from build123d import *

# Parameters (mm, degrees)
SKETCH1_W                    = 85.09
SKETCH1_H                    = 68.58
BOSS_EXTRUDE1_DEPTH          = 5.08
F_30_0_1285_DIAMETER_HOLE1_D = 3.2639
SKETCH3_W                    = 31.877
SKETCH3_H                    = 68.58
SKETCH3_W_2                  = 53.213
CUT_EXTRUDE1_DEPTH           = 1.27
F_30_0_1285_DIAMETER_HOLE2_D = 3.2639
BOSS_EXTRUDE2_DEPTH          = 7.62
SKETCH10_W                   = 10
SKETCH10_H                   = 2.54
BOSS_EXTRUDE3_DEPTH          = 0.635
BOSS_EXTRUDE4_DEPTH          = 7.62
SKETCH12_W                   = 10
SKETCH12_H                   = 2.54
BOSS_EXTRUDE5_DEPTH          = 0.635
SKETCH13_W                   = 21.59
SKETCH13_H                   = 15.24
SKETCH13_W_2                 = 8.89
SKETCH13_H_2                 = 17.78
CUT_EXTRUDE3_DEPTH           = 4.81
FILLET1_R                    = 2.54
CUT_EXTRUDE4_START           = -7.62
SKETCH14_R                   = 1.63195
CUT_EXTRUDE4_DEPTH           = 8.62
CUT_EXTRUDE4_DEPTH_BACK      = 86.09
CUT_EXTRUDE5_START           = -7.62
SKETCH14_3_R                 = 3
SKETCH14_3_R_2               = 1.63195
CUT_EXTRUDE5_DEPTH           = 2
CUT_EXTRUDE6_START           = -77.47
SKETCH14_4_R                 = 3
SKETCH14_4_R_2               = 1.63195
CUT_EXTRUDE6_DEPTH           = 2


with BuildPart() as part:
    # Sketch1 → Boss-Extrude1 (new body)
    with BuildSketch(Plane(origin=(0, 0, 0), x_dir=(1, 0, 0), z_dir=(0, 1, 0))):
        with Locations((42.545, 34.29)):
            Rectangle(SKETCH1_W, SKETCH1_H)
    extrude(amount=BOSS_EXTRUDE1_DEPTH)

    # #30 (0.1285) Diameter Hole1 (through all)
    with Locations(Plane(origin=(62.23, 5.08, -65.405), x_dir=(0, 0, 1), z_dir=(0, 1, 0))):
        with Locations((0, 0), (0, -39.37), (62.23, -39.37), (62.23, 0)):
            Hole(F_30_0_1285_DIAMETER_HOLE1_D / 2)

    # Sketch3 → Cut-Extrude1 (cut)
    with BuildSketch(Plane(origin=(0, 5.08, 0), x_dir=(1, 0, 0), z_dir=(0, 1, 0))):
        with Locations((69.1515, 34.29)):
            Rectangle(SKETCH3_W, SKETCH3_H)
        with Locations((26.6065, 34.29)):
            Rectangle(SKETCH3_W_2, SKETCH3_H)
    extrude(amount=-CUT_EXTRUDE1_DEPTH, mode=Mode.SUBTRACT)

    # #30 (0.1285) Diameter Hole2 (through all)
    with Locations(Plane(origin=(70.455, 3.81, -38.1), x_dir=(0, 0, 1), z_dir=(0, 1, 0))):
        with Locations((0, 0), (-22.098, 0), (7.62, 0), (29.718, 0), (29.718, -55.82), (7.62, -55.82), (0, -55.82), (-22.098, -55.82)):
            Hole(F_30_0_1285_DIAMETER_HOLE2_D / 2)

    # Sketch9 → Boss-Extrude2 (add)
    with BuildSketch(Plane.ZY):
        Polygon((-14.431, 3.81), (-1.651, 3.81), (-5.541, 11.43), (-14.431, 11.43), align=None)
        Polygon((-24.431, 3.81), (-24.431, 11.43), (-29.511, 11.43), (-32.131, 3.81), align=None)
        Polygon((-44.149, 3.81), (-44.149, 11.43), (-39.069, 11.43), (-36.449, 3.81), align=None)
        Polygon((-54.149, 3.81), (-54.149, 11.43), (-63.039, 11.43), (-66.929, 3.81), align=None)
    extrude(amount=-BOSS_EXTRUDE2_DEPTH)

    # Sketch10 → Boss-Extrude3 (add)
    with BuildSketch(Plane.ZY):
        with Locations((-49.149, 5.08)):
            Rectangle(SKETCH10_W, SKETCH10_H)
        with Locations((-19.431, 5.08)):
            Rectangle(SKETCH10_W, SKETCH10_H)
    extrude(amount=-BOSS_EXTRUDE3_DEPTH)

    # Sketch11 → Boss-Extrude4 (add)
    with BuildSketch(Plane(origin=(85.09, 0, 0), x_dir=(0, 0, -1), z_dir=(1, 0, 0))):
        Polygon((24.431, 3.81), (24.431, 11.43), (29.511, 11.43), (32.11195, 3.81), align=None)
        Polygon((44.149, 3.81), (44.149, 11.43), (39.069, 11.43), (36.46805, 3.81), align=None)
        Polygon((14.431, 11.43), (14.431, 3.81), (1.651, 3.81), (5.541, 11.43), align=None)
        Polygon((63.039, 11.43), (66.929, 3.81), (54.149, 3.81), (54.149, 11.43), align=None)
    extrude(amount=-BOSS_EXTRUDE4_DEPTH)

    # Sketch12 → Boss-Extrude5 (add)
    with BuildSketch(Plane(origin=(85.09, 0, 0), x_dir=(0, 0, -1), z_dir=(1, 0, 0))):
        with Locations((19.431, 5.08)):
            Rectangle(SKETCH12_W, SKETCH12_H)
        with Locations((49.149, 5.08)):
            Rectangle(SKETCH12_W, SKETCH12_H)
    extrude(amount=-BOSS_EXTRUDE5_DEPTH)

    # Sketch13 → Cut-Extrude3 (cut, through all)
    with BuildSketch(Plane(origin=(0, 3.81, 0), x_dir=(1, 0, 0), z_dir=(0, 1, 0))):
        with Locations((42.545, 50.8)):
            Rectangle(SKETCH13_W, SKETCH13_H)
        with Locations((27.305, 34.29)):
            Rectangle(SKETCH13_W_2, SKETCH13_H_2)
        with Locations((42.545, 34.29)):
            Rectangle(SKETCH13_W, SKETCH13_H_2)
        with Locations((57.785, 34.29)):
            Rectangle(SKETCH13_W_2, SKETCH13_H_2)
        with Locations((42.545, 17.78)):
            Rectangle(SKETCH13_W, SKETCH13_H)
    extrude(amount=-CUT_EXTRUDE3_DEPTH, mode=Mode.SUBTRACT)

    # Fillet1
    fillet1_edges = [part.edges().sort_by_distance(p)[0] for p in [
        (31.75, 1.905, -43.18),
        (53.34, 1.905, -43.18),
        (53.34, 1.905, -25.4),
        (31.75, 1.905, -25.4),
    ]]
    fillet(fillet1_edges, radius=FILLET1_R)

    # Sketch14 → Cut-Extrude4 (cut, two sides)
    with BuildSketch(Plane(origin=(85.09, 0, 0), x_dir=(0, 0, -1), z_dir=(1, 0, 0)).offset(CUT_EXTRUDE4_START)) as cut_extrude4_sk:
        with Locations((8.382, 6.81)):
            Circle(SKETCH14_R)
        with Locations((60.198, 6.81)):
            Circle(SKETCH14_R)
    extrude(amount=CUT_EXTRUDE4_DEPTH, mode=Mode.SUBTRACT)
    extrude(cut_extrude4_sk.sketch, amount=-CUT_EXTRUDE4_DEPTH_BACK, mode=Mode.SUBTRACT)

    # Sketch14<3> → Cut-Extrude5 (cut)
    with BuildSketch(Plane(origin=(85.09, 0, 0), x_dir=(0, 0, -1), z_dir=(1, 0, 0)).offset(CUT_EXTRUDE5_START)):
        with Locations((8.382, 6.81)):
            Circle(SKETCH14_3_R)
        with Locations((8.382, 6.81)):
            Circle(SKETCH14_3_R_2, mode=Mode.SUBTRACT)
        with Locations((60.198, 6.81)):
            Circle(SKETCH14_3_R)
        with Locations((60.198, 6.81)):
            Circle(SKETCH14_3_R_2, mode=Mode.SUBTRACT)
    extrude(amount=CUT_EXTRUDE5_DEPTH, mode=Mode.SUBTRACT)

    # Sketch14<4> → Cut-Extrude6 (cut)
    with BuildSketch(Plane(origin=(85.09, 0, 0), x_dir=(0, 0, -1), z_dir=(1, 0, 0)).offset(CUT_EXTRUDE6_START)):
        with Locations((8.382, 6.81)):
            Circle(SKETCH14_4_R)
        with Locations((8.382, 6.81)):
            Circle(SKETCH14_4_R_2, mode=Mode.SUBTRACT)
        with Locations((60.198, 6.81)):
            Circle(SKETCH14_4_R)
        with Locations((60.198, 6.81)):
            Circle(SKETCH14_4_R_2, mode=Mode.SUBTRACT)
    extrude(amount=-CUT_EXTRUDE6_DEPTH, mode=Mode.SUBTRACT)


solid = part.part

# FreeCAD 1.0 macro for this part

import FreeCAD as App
import Part
import Sketcher
from FreeCAD import Vector
Q = App.Units.Quantity


def edges_at(feature, points):
    """Names of the edges that pass closest to the given points."""
    edges = feature.Shape.Edges
    near = lambda p: min(range(len(edges)), key=lambda i: edges[i].distToShape(Part.Vertex(*p))[0])
    return sorted({f"Edge{near(p) + 1}" for p in points})

doc = App.newDocument("Part")
body = doc.addObject("PartDesign::Body", "Body")

# Sketch on XZ plane
sketch1 = body.newObject("Sketcher::SketchObject", "Sketch")
sketch1.AttachmentSupport = (doc.getObject("XZ_Plane"), [""])
sketch1.MapMode = "FlatFace"
sketch1.addGeometry(Part.LineSegment(Vector(0, -69, 0), Vector(0, 0, 0)), False)
sketch1.addGeometry(Part.LineSegment(Vector(0, 0, 0), Vector(85, 0, 0)), False)
sketch1.addGeometry(Part.LineSegment(Vector(85, 0, 0), Vector(85, -69, 0)), False)
sketch1.addGeometry(Part.LineSegment(Vector(85, -69, 0), Vector(0, -69, 0)), False)
sketch1.addConstraint(Sketcher.Constraint("Coincident", 0, 2, 1, 1))
sketch1.addConstraint(Sketcher.Constraint("Coincident", 1, 2, 2, 1))
sketch1.addConstraint(Sketcher.Constraint("Coincident", 2, 2, 3, 1))
sketch1.addConstraint(Sketcher.Constraint("Coincident", 3, 2, 0, 1))
sketch1.addConstraint(Sketcher.Constraint("Vertical", 0))
sketch1.addConstraint(Sketcher.Constraint("Horizontal", 1))
sketch1.addConstraint(Sketcher.Constraint("Vertical", 2))
sketch1.addConstraint(Sketcher.Constraint("Horizontal", 3))
sketch1.addConstraint(Sketcher.Constraint("Coincident", 0, 2, -1, 1))
sketch1.addConstraint(Sketcher.Constraint("DistanceY", 0, 1, 0, 2, Q("2.7 in")))
sketch1.addConstraint(Sketcher.Constraint("DistanceX", 1, 1, 1, 2, Q("3.35 in")))
pad1 = body.newObject("PartDesign::Pad", "Pad")
pad1.Profile = sketch1
pad1.Length = Q("0.2 in")
pad1.Reversed = True

# Sketch on XZ plane
sketch2 = body.newObject("Sketcher::SketchObject", "Sketch001")
sketch2.AttachmentSupport = (doc.getObject("XZ_Plane"), [""])
sketch2.MapMode = "FlatFace"
sketch2.AttachmentOffset = App.Placement(Vector(0, 0, -0.2 * 25.4), App.Rotation())
sketch2.addGeometry(Part.Circle(Vector(62.2, -65.4, 0), Vector(0, 0, 1), 1.6), False)
sketch2.addGeometry(Part.Circle(Vector(22.9, -65.4, 0), Vector(0, 0, 1), 1.6), False)
sketch2.addGeometry(Part.Circle(Vector(22.9, -3.2, 0), Vector(0, 0, 1), 1.6), False)
sketch2.addGeometry(Part.Circle(Vector(62.2, -3.2, 0), Vector(0, 0, 1), 1.6), False)
sketch2.addConstraint(Sketcher.Constraint("Equal", 0, 1))
sketch2.addConstraint(Sketcher.Constraint("Equal", 1, 2))
sketch2.addConstraint(Sketcher.Constraint("Equal", 2, 3))
sketch2.addConstraint(Sketcher.Constraint("Horizontal", 0, 3, 1, 3))
sketch2.addConstraint(Sketcher.Constraint("Horizontal", 2, 3, 3, 3))
sketch2.addConstraint(Sketcher.Constraint("Vertical", 1, 3, 2, 3))
sketch2.addConstraint(Sketcher.Constraint("Vertical", 0, 3, 3, 3))
sketch2.addConstraint(Sketcher.Constraint("Diameter", 0, Q("0.1285 in")))
sketch2.addConstraint(Sketcher.Constraint("DistanceX", -1, 1, 1, 3, Q("0.9 in")))
sketch2.addConstraint(Sketcher.Constraint("DistanceX", -1, 1, 0, 3, Q("2.45 in")))
sketch2.addConstraint(Sketcher.Constraint("DistanceY", 1, 3, 2, 3, Q("2.45 in")))
sketch2.addConstraint(Sketcher.Constraint("DistanceY", 0, 3, -1, 1, Q("2.575 in")))
doc.recompute()
hole = body.newObject("PartDesign::Hole", "Hole")
hole.Profile = sketch2
hole.ThreadType = "None"
hole.Diameter = Q("0.1285 in")
hole.DepthType = "ThroughAll"
hole.Reversed = True

# Sketch on XZ plane
sketch3 = body.newObject("Sketcher::SketchObject", "Sketch002")
sketch3.AttachmentSupport = (doc.getObject("XZ_Plane"), [""])
sketch3.MapMode = "FlatFace"
sketch3.AttachmentOffset = App.Placement(Vector(0, 0, -0.2 * 25.4), App.Rotation())
sketch3.addGeometry(Part.LineSegment(Vector(85, 0, 0), Vector(85, -69, 0)), False)
sketch3.addGeometry(Part.LineSegment(Vector(85, -69, 0), Vector(0, -69, 0)), False)
sketch3.addGeometry(Part.LineSegment(Vector(0, -69, 0), Vector(0, 0, 0)), False)
sketch3.addGeometry(Part.LineSegment(Vector(0, 0, 0), Vector(85, 0, 0)), False)
sketch3.addConstraint(Sketcher.Constraint("Coincident", 0, 2, 1, 1))
sketch3.addConstraint(Sketcher.Constraint("Coincident", 1, 2, 2, 1))
sketch3.addConstraint(Sketcher.Constraint("Coincident", 2, 2, 3, 1))
sketch3.addConstraint(Sketcher.Constraint("Coincident", 3, 2, 0, 1))
sketch3.addConstraint(Sketcher.Constraint("Vertical", 0))
sketch3.addConstraint(Sketcher.Constraint("Horizontal", 1))
sketch3.addConstraint(Sketcher.Constraint("Vertical", 2))
sketch3.addConstraint(Sketcher.Constraint("Horizontal", 3))
sketch3.addConstraint(Sketcher.Constraint("Coincident", 2, 2, -1, 1))
sketch3.addConstraint(Sketcher.Constraint("DistanceY", 0, 2, 0, 1, Q("2.7 in")))
sketch3.addConstraint(Sketcher.Constraint("DistanceX", 1, 2, 1, 1, Q("3.35 in")))
pocket1 = body.newObject("PartDesign::Pocket", "Pocket")
pocket1.Profile = sketch3
pocket1.Length = Q("0.05 in")
pocket1.Reversed = True

# Sketch on XZ plane
sketch4 = body.newObject("Sketcher::SketchObject", "Sketch003")
sketch4.AttachmentSupport = (doc.getObject("XZ_Plane"), [""])
sketch4.MapMode = "FlatFace"
sketch4.AttachmentOffset = App.Placement(Vector(0, 0, -0.15 * 25.4), App.Rotation())
sketch4.addGeometry(Part.Circle(Vector(70.5, -38.1, 0), Vector(0, 0, 1), 1.6), False)
sketch4.addGeometry(Part.Circle(Vector(70.5, -60.2, 0), Vector(0, 0, 1), 1.6), False)
sketch4.addGeometry(Part.Circle(Vector(70.5, -30.5, 0), Vector(0, 0, 1), 1.6), False)
sketch4.addGeometry(Part.Circle(Vector(70.5, -8.4, 0), Vector(0, 0, 1), 1.6), False)
sketch4.addGeometry(Part.Circle(Vector(14.6, -8.4, 0), Vector(0, 0, 1), 1.6), False)
sketch4.addGeometry(Part.Circle(Vector(14.6, -30.5, 0), Vector(0, 0, 1), 1.6), False)
sketch4.addGeometry(Part.Circle(Vector(14.6, -38.1, 0), Vector(0, 0, 1), 1.6), False)
sketch4.addGeometry(Part.Circle(Vector(14.6, -60.2, 0), Vector(0, 0, 1), 1.6), False)
sketch4.addConstraint(Sketcher.Constraint("Equal", 0, 1))
sketch4.addConstraint(Sketcher.Constraint("Equal", 1, 2))
sketch4.addConstraint(Sketcher.Constraint("Equal", 2, 3))
sketch4.addConstraint(Sketcher.Constraint("Equal", 3, 4))
sketch4.addConstraint(Sketcher.Constraint("Equal", 4, 5))
sketch4.addConstraint(Sketcher.Constraint("Equal", 5, 6))
sketch4.addConstraint(Sketcher.Constraint("Equal", 6, 7))
sketch4.addConstraint(Sketcher.Constraint("Horizontal", 3, 3, 4, 3))
sketch4.addConstraint(Sketcher.Constraint("Horizontal", 2, 3, 5, 3))
sketch4.addConstraint(Sketcher.Constraint("Horizontal", 0, 3, 6, 3))
sketch4.addConstraint(Sketcher.Constraint("Horizontal", 1, 3, 7, 3))
sketch4.addConstraint(Sketcher.Constraint("Vertical", 0, 3, 1, 3))
sketch4.addConstraint(Sketcher.Constraint("Vertical", 1, 3, 2, 3))
sketch4.addConstraint(Sketcher.Constraint("Vertical", 2, 3, 3, 3))
sketch4.addConstraint(Sketcher.Constraint("Vertical", 4, 3, 5, 3))
sketch4.addConstraint(Sketcher.Constraint("Vertical", 5, 3, 6, 3))
sketch4.addConstraint(Sketcher.Constraint("Vertical", 6, 3, 7, 3))
sketch4.addConstraint(Sketcher.Constraint("Diameter", 0, Q("0.1285 in")))
sketch4.addConstraint(Sketcher.Constraint("DistanceY", 0, 3, -1, 1, Q("1.5 in")))
sketch4.addConstraint(Sketcher.Constraint("DistanceY", 2, 3, -1, 1, Q("1.2 in")))
sketch4.addConstraint(Sketcher.Constraint("DistanceY", 1, 3, -1, 1, Q("2.37 in")))
sketch4.addConstraint(Sketcher.Constraint("DistanceY", 3, 3, -1, 1, Q("0.33 in")))
sketch4.addConstraint(Sketcher.Constraint("DistanceX", -1, 1, 0, 3, 70.455))
sketch4.addConstraint(Sketcher.Constraint("DistanceX", -1, 1, 4, 3, 14.635))
doc.recompute()
hole2 = body.newObject("PartDesign::Hole", "Hole001")
hole2.Profile = sketch4
hole2.ThreadType = "None"
hole2.Diameter = Q("0.1285 in")
hole2.DepthType = "ThroughAll"
hole2.Reversed = True

# Sketch on YZ plane
sketch5 = body.newObject("Sketcher::SketchObject", "Sketch004")
sketch5.AttachmentSupport = (doc.getObject("YZ_Plane"), [""])
sketch5.MapMode = "FlatFace"
sketch5.addGeometry(Part.LineSegment(Vector(4, -14, 0), Vector(4, -2, 0)), False)
sketch5.addGeometry(Part.LineSegment(Vector(4, -2, 0), Vector(11, -6, 0)), False)
sketch5.addGeometry(Part.LineSegment(Vector(11, -6, 0), Vector(11, -14, 0)), False)
sketch5.addGeometry(Part.LineSegment(Vector(11, -14, 0), Vector(4, -14, 0)), False)
sketch5.addGeometry(Part.LineSegment(Vector(4, -24, 0), Vector(11, -24, 0)), False)
sketch5.addGeometry(Part.LineSegment(Vector(11, -24, 0), Vector(11, -30, 0)), False)
sketch5.addGeometry(Part.LineSegment(Vector(11, -30, 0), Vector(4, -32, 0)), False)
sketch5.addGeometry(Part.LineSegment(Vector(4, -32, 0), Vector(4, -24, 0)), False)
sketch5.addGeometry(Part.LineSegment(Vector(11, -44, 0), Vector(4, -44, 0)), False)
sketch5.addGeometry(Part.LineSegment(Vector(4, -44, 0), Vector(4, -36, 0)), False)
sketch5.addGeometry(Part.LineSegment(Vector(4, -36, 0), Vector(11, -39, 0)), False)
sketch5.addGeometry(Part.LineSegment(Vector(11, -39, 0), Vector(11, -44, 0)), False)
sketch5.addGeometry(Part.LineSegment(Vector(4, -54, 0), Vector(11, -54, 0)), False)
sketch5.addGeometry(Part.LineSegment(Vector(11, -54, 0), Vector(11, -63, 0)), False)
sketch5.addGeometry(Part.LineSegment(Vector(11, -63, 0), Vector(4, -67, 0)), False)
sketch5.addGeometry(Part.LineSegment(Vector(4, -67, 0), Vector(4, -54, 0)), False)
sketch5.addConstraint(Sketcher.Constraint("Coincident", 0, 2, 1, 1))
sketch5.addConstraint(Sketcher.Constraint("Coincident", 1, 2, 2, 1))
sketch5.addConstraint(Sketcher.Constraint("Coincident", 2, 2, 3, 1))
sketch5.addConstraint(Sketcher.Constraint("Coincident", 3, 2, 0, 1))
sketch5.addConstraint(Sketcher.Constraint("Coincident", 4, 2, 5, 1))
sketch5.addConstraint(Sketcher.Constraint("Coincident", 5, 2, 6, 1))
sketch5.addConstraint(Sketcher.Constraint("Coincident", 6, 2, 7, 1))
sketch5.addConstraint(Sketcher.Constraint("Coincident", 7, 2, 4, 1))
sketch5.addConstraint(Sketcher.Constraint("Coincident", 8, 2, 9, 1))
sketch5.addConstraint(Sketcher.Constraint("Coincident", 9, 2, 10, 1))
sketch5.addConstraint(Sketcher.Constraint("Coincident", 10, 2, 11, 1))
sketch5.addConstraint(Sketcher.Constraint("Coincident", 11, 2, 8, 1))
sketch5.addConstraint(Sketcher.Constraint("Coincident", 12, 2, 13, 1))
sketch5.addConstraint(Sketcher.Constraint("Coincident", 13, 2, 14, 1))
sketch5.addConstraint(Sketcher.Constraint("Coincident", 14, 2, 15, 1))
sketch5.addConstraint(Sketcher.Constraint("Coincident", 15, 2, 12, 1))
sketch5.addConstraint(Sketcher.Constraint("Vertical", 0))
sketch5.addConstraint(Sketcher.Constraint("Vertical", 2))
sketch5.addConstraint(Sketcher.Constraint("Horizontal", 3))
sketch5.addConstraint(Sketcher.Constraint("Horizontal", 4))
sketch5.addConstraint(Sketcher.Constraint("Vertical", 5))
sketch5.addConstraint(Sketcher.Constraint("Vertical", 7))
sketch5.addConstraint(Sketcher.Constraint("Horizontal", 8))
sketch5.addConstraint(Sketcher.Constraint("Vertical", 9))
sketch5.addConstraint(Sketcher.Constraint("Vertical", 11))
sketch5.addConstraint(Sketcher.Constraint("Horizontal", 12))
sketch5.addConstraint(Sketcher.Constraint("Vertical", 13))
sketch5.addConstraint(Sketcher.Constraint("Vertical", 15))
sketch5.addConstraint(Sketcher.Constraint("Vertical", 2, 2, 4, 2))
sketch5.addConstraint(Sketcher.Constraint("Vertical", 3, 2, 6, 2))
sketch5.addConstraint(Sketcher.Constraint("Vertical", 7, 2, 8, 2))
sketch5.addConstraint(Sketcher.Constraint("Vertical", 5, 2, 10, 2))
sketch5.addConstraint(Sketcher.Constraint("Vertical", 11, 2, 12, 2))
sketch5.addConstraint(Sketcher.Constraint("Vertical", 9, 2, 14, 2))
sketch5.addConstraint(Sketcher.Constraint("Equal", 7, 9))
sketch5.addConstraint(Sketcher.Constraint("Equal", 5, 11))
sketch5.addConstraint(Sketcher.Constraint("Equal", 2, 13))
sketch5.addConstraint(Sketcher.Constraint("Equal", 0, 15))
sketch5.addConstraint(Sketcher.Constraint("DistanceX", 3, 2, 3, 1, Q("0.3 in")))
sketch5.addConstraint(Sketcher.Constraint("DistanceY", 5, 2, 5, 1, Q("0.2 in")))
sketch5.addConstraint(Sketcher.Constraint("DistanceY", 2, 2, 2, 1, Q("0.35 in")))
sketch5.addConstraint(Sketcher.Constraint("DistanceX", -1, 1, 0, 2, Q("0.15 in")))
sketch5.addConstraint(Sketcher.Constraint("DistanceY", 8, 2, 3, 2, Q("1.17 in")))
sketch5.addConstraint(Sketcher.Constraint("DistanceY", 9, 2, 6, 2, Q("0.17 in")))
sketch5.addConstraint(Sketcher.Constraint("DistanceY", 0, 2, -1, 1, Q("0.065 in")))
sketch5.addConstraint(Sketcher.Constraint("DistanceY", 6, 2, -1, 1, Q("1.265 in")))
sketch5.addConstraint(Sketcher.Constraint("DistanceY", 14, 2, -1, 1, Q("2.635 in")))
sketch5.addConstraint(Sketcher.Constraint("DistanceY", 0, 1, 0, 2, 12.78))
pad2 = body.newObject("PartDesign::Pad", "Pad001")
pad2.Profile = sketch5
pad2.Length = Q("0.3 in")

# Sketch on YZ plane
sketch6 = body.newObject("Sketcher::SketchObject", "Sketch005")
sketch6.AttachmentSupport = (doc.getObject("YZ_Plane"), [""])
sketch6.MapMode = "FlatFace"
sketch6.addGeometry(Part.LineSegment(Vector(6.3, -54.1, 0), Vector(3.8, -54.1, 0)), False)
sketch6.addGeometry(Part.LineSegment(Vector(3.8, -54.1, 0), Vector(3.8, -44.1, 0)), False)
sketch6.addGeometry(Part.LineSegment(Vector(3.8, -44.1, 0), Vector(6.3, -44.1, 0)), False)
sketch6.addGeometry(Part.LineSegment(Vector(6.3, -44.1, 0), Vector(6.3, -54.1, 0)), False)
sketch6.addGeometry(Part.LineSegment(Vector(6.3, -24.4, 0), Vector(3.8, -24.4, 0)), False)
sketch6.addGeometry(Part.LineSegment(Vector(3.8, -24.4, 0), Vector(3.8, -14.4, 0)), False)
sketch6.addGeometry(Part.LineSegment(Vector(3.8, -14.4, 0), Vector(6.3, -14.4, 0)), False)
sketch6.addGeometry(Part.LineSegment(Vector(6.3, -14.4, 0), Vector(6.3, -24.4, 0)), False)
sketch6.addConstraint(Sketcher.Constraint("Coincident", 0, 2, 1, 1))
sketch6.addConstraint(Sketcher.Constraint("Coincident", 1, 2, 2, 1))
sketch6.addConstraint(Sketcher.Constraint("Coincident", 2, 2, 3, 1))
sketch6.addConstraint(Sketcher.Constraint("Coincident", 3, 2, 0, 1))
sketch6.addConstraint(Sketcher.Constraint("Coincident", 4, 2, 5, 1))
sketch6.addConstraint(Sketcher.Constraint("Coincident", 5, 2, 6, 1))
sketch6.addConstraint(Sketcher.Constraint("Coincident", 6, 2, 7, 1))
sketch6.addConstraint(Sketcher.Constraint("Coincident", 7, 2, 4, 1))
sketch6.addConstraint(Sketcher.Constraint("Horizontal", 0))
sketch6.addConstraint(Sketcher.Constraint("Vertical", 1))
sketch6.addConstraint(Sketcher.Constraint("Horizontal", 2))
sketch6.addConstraint(Sketcher.Constraint("Vertical", 3))
sketch6.addConstraint(Sketcher.Constraint("Horizontal", 4))
sketch6.addConstraint(Sketcher.Constraint("Vertical", 5))
sketch6.addConstraint(Sketcher.Constraint("Horizontal", 6))
sketch6.addConstraint(Sketcher.Constraint("Vertical", 7))
sketch6.addConstraint(Sketcher.Constraint("Vertical", 1, 2, 4, 2))
sketch6.addConstraint(Sketcher.Constraint("Vertical", 3, 2, 6, 2))
sketch6.addConstraint(Sketcher.Constraint("Equal", 3, 5))
sketch6.addConstraint(Sketcher.Constraint("DistanceX", 0, 2, 0, 1, Q("0.1 in")))
sketch6.addConstraint(Sketcher.Constraint("DistanceX", -1, 1, 0, 2, Q("0.15 in")))
sketch6.addConstraint(Sketcher.Constraint("DistanceY", 0, 2, 4, 2, Q("1.17 in")))
sketch6.addConstraint(Sketcher.Constraint("DistanceY", 1, 1, 1, 2, 10.0))
sketch6.addConstraint(Sketcher.Constraint("DistanceY", 0, 2, -1, 1, 54.149))
pad3 = body.newObject("PartDesign::Pad", "Pad002")
pad3.Profile = sketch6
pad3.Length = Q("0.025 in")

# Sketch on YZ plane
sketch7 = body.newObject("Sketcher::SketchObject", "Sketch006")
sketch7.AttachmentSupport = (doc.getObject("YZ_Plane"), [""])
sketch7.MapMode = "FlatFace"
sketch7.AttachmentOffset = App.Placement(Vector(0, 0, 3.35 * 25.4), App.Rotation())
sketch7.addGeometry(Part.LineSegment(Vector(11, -24, 0), Vector(4, -24, 0)), False)
sketch7.addGeometry(Part.LineSegment(Vector(4, -24, 0), Vector(4, -32, 0)), False)
sketch7.addGeometry(Part.LineSegment(Vector(4, -32, 0), Vector(11, -30, 0)), False)
sketch7.addGeometry(Part.LineSegment(Vector(11, -30, 0), Vector(11, -24, 0)), False)
sketch7.addGeometry(Part.LineSegment(Vector(4, -44, 0), Vector(11, -44, 0)), False)
sketch7.addGeometry(Part.LineSegment(Vector(11, -44, 0), Vector(11, -39, 0)), False)
sketch7.addGeometry(Part.LineSegment(Vector(11, -39, 0), Vector(4, -36, 0)), False)
sketch7.addGeometry(Part.LineSegment(Vector(4, -36, 0), Vector(4, -44, 0)), False)
sketch7.addGeometry(Part.LineSegment(Vector(4, -14, 0), Vector(11, -14, 0)), False)
sketch7.addGeometry(Part.LineSegment(Vector(11, -14, 0), Vector(11, -6, 0)), False)
sketch7.addGeometry(Part.LineSegment(Vector(11, -6, 0), Vector(4, -2, 0)), False)
sketch7.addGeometry(Part.LineSegment(Vector(4, -2, 0), Vector(4, -14, 0)), False)
sketch7.addGeometry(Part.LineSegment(Vector(4, -67, 0), Vector(11, -63, 0)), False)
sketch7.addGeometry(Part.LineSegment(Vector(11, -63, 0), Vector(11, -54, 0)), False)
sketch7.addGeometry(Part.LineSegment(Vector(11, -54, 0), Vector(4, -54, 0)), False)
sketch7.addGeometry(Part.LineSegment(Vector(4, -54, 0), Vector(4, -67, 0)), False)
sketch7.addConstraint(Sketcher.Constraint("Coincident", 0, 2, 1, 1))
sketch7.addConstraint(Sketcher.Constraint("Coincident", 1, 2, 2, 1))
sketch7.addConstraint(Sketcher.Constraint("Coincident", 2, 2, 3, 1))
sketch7.addConstraint(Sketcher.Constraint("Coincident", 3, 2, 0, 1))
sketch7.addConstraint(Sketcher.Constraint("Coincident", 4, 2, 5, 1))
sketch7.addConstraint(Sketcher.Constraint("Coincident", 5, 2, 6, 1))
sketch7.addConstraint(Sketcher.Constraint("Coincident", 6, 2, 7, 1))
sketch7.addConstraint(Sketcher.Constraint("Coincident", 7, 2, 4, 1))
sketch7.addConstraint(Sketcher.Constraint("Coincident", 8, 2, 9, 1))
sketch7.addConstraint(Sketcher.Constraint("Coincident", 9, 2, 10, 1))
sketch7.addConstraint(Sketcher.Constraint("Coincident", 10, 2, 11, 1))
sketch7.addConstraint(Sketcher.Constraint("Coincident", 11, 2, 8, 1))
sketch7.addConstraint(Sketcher.Constraint("Coincident", 12, 2, 13, 1))
sketch7.addConstraint(Sketcher.Constraint("Coincident", 13, 2, 14, 1))
sketch7.addConstraint(Sketcher.Constraint("Coincident", 14, 2, 15, 1))
sketch7.addConstraint(Sketcher.Constraint("Coincident", 15, 2, 12, 1))
sketch7.addConstraint(Sketcher.Constraint("Horizontal", 0))
sketch7.addConstraint(Sketcher.Constraint("Vertical", 1))
sketch7.addConstraint(Sketcher.Constraint("Vertical", 3))
sketch7.addConstraint(Sketcher.Constraint("Horizontal", 4))
sketch7.addConstraint(Sketcher.Constraint("Vertical", 5))
sketch7.addConstraint(Sketcher.Constraint("Vertical", 7))
sketch7.addConstraint(Sketcher.Constraint("Horizontal", 8))
sketch7.addConstraint(Sketcher.Constraint("Vertical", 9))
sketch7.addConstraint(Sketcher.Constraint("Vertical", 11))
sketch7.addConstraint(Sketcher.Constraint("Vertical", 13))
sketch7.addConstraint(Sketcher.Constraint("Horizontal", 14))
sketch7.addConstraint(Sketcher.Constraint("Vertical", 15))
sketch7.addConstraint(Sketcher.Constraint("Vertical", 3, 2, 4, 2))
sketch7.addConstraint(Sketcher.Constraint("Vertical", 1, 2, 6, 2))
sketch7.addConstraint(Sketcher.Constraint("Vertical", 5, 2, 8, 2))
sketch7.addConstraint(Sketcher.Constraint("Vertical", 7, 2, 10, 2))
sketch7.addConstraint(Sketcher.Constraint("Vertical", 9, 2, 12, 2))
sketch7.addConstraint(Sketcher.Constraint("Vertical", 11, 2, 14, 2))
sketch7.addConstraint(Sketcher.Constraint("Equal", 3, 5))
sketch7.addConstraint(Sketcher.Constraint("Equal", 1, 7))
sketch7.addConstraint(Sketcher.Constraint("Equal", 9, 13))
sketch7.addConstraint(Sketcher.Constraint("Equal", 11, 15))
sketch7.addConstraint(Sketcher.Constraint("DistanceX", 0, 2, 0, 1, Q("0.3 in")))
sketch7.addConstraint(Sketcher.Constraint("DistanceY", 3, 1, 3, 2, Q("0.2 in")))
sketch7.addConstraint(Sketcher.Constraint("DistanceY", 9, 1, 9, 2, Q("0.35 in")))
sketch7.addConstraint(Sketcher.Constraint("DistanceX", -1, 1, 0, 2, Q("0.15 in")))
sketch7.addConstraint(Sketcher.Constraint("DistanceY", 10, 2, -1, 1, Q("0.065 in")))
sketch7.addConstraint(Sketcher.Constraint("DistanceY", 15, 2, -1, 1, Q("2.635 in")))
sketch7.addConstraint(Sketcher.Constraint("DistanceY", 11, 2, 11, 1, 12.78))
sketch7.addConstraint(Sketcher.Constraint("DistanceY", 6, 2, 1, 2, Q("0.1715 in")))
sketch7.addConstraint(Sketcher.Constraint("DistanceY", 1, 2, 1, 1, 7.68095))
sketch7.addConstraint(Sketcher.Constraint("DistanceY", 0, 2, -1, 1, 24.431))
pad4 = body.newObject("PartDesign::Pad", "Pad003")
pad4.Profile = sketch7
pad4.Length = Q("0.3 in")
pad4.Reversed = True

# Sketch on YZ plane
sketch8 = body.newObject("Sketcher::SketchObject", "Sketch007")
sketch8.AttachmentSupport = (doc.getObject("YZ_Plane"), [""])
sketch8.MapMode = "FlatFace"
sketch8.AttachmentOffset = App.Placement(Vector(0, 0, 3.35 * 25.4), App.Rotation())
sketch8.addGeometry(Part.LineSegment(Vector(6.3, -14.4, 0), Vector(3.8, -14.4, 0)), False)
sketch8.addGeometry(Part.LineSegment(Vector(3.8, -14.4, 0), Vector(3.8, -24.4, 0)), False)
sketch8.addGeometry(Part.LineSegment(Vector(3.8, -24.4, 0), Vector(6.3, -24.4, 0)), False)
sketch8.addGeometry(Part.LineSegment(Vector(6.3, -24.4, 0), Vector(6.3, -14.4, 0)), False)
sketch8.addGeometry(Part.LineSegment(Vector(6.3, -44.1, 0), Vector(3.8, -44.1, 0)), False)
sketch8.addGeometry(Part.LineSegment(Vector(3.8, -44.1, 0), Vector(3.8, -54.1, 0)), False)
sketch8.addGeometry(Part.LineSegment(Vector(3.8, -54.1, 0), Vector(6.3, -54.1, 0)), False)
sketch8.addGeometry(Part.LineSegment(Vector(6.3, -54.1, 0), Vector(6.3, -44.1, 0)), False)
sketch8.addConstraint(Sketcher.Constraint("Coincident", 0, 2, 1, 1))
sketch8.addConstraint(Sketcher.Constraint("Coincident", 1, 2, 2, 1))
sketch8.addConstraint(Sketcher.Constraint("Coincident", 2, 2, 3, 1))
sketch8.addConstraint(Sketcher.Constraint("Coincident", 3, 2, 0, 1))
sketch8.addConstraint(Sketcher.Constraint("Coincident", 4, 2, 5, 1))
sketch8.addConstraint(Sketcher.Constraint("Coincident", 5, 2, 6, 1))
sketch8.addConstraint(Sketcher.Constraint("Coincident", 6, 2, 7, 1))
sketch8.addConstraint(Sketcher.Constraint("Coincident", 7, 2, 4, 1))
sketch8.addConstraint(Sketcher.Constraint("Horizontal", 0))
sketch8.addConstraint(Sketcher.Constraint("Vertical", 1))
sketch8.addConstraint(Sketcher.Constraint("Horizontal", 2))
sketch8.addConstraint(Sketcher.Constraint("Vertical", 3))
sketch8.addConstraint(Sketcher.Constraint("Horizontal", 4))
sketch8.addConstraint(Sketcher.Constraint("Vertical", 5))
sketch8.addConstraint(Sketcher.Constraint("Horizontal", 6))
sketch8.addConstraint(Sketcher.Constraint("Vertical", 7))
sketch8.addConstraint(Sketcher.Constraint("Vertical", 1, 2, 4, 2))
sketch8.addConstraint(Sketcher.Constraint("Vertical", 3, 2, 6, 2))
sketch8.addConstraint(Sketcher.Constraint("Equal", 3, 5))
sketch8.addConstraint(Sketcher.Constraint("DistanceX", 0, 2, 0, 1, Q("0.1 in")))
sketch8.addConstraint(Sketcher.Constraint("DistanceX", -1, 1, 0, 2, Q("0.15 in")))
sketch8.addConstraint(Sketcher.Constraint("DistanceY", 4, 2, 0, 2, Q("1.17 in")))
sketch8.addConstraint(Sketcher.Constraint("DistanceY", 1, 2, 1, 1, 10.0))
sketch8.addConstraint(Sketcher.Constraint("DistanceY", 0, 2, -1, 1, 14.431))
pad5 = body.newObject("PartDesign::Pad", "Pad004")
pad5.Profile = sketch8
pad5.Length = Q("0.025 in")
pad5.Reversed = True

# Sketch on XZ plane
sketch9 = body.newObject("Sketcher::SketchObject", "Sketch008")
sketch9.AttachmentSupport = (doc.getObject("XZ_Plane"), [""])
sketch9.MapMode = "FlatFace"
sketch9.AttachmentOffset = App.Placement(Vector(0, 0, -0.15 * 25.4), App.Rotation())
sketch9.addGeometry(Part.LineSegment(Vector(32, -58, 0), Vector(32, -43, 0)), False)
sketch9.addGeometry(Part.LineSegment(Vector(32, -43, 0), Vector(23, -43, 0)), False)
sketch9.addGeometry(Part.LineSegment(Vector(23, -43, 0), Vector(23, -25, 0)), False)
sketch9.addGeometry(Part.LineSegment(Vector(23, -25, 0), Vector(32, -25, 0)), False)
sketch9.addGeometry(Part.LineSegment(Vector(32, -25, 0), Vector(32, -10, 0)), False)
sketch9.addGeometry(Part.LineSegment(Vector(32, -10, 0), Vector(53, -10, 0)), False)
sketch9.addGeometry(Part.LineSegment(Vector(53, -10, 0), Vector(53, -25, 0)), False)
sketch9.addGeometry(Part.LineSegment(Vector(53, -25, 0), Vector(62, -25, 0)), False)
sketch9.addGeometry(Part.LineSegment(Vector(62, -25, 0), Vector(62, -43, 0)), False)
sketch9.addGeometry(Part.LineSegment(Vector(62, -43, 0), Vector(53, -43, 0)), False)
sketch9.addGeometry(Part.LineSegment(Vector(53, -43, 0), Vector(53, -58, 0)), False)
sketch9.addGeometry(Part.LineSegment(Vector(53, -58, 0), Vector(32, -58, 0)), False)
sketch9.addConstraint(Sketcher.Constraint("Coincident", 0, 2, 1, 1))
sketch9.addConstraint(Sketcher.Constraint("Coincident", 1, 2, 2, 1))
sketch9.addConstraint(Sketcher.Constraint("Coincident", 2, 2, 3, 1))
sketch9.addConstraint(Sketcher.Constraint("Coincident", 3, 2, 4, 1))
sketch9.addConstraint(Sketcher.Constraint("Coincident", 4, 2, 5, 1))
sketch9.addConstraint(Sketcher.Constraint("Coincident", 5, 2, 6, 1))
sketch9.addConstraint(Sketcher.Constraint("Coincident", 6, 2, 7, 1))
sketch9.addConstraint(Sketcher.Constraint("Coincident", 7, 2, 8, 1))
sketch9.addConstraint(Sketcher.Constraint("Coincident", 8, 2, 9, 1))
sketch9.addConstraint(Sketcher.Constraint("Coincident", 9, 2, 10, 1))
sketch9.addConstraint(Sketcher.Constraint("Coincident", 10, 2, 11, 1))
sketch9.addConstraint(Sketcher.Constraint("Coincident", 11, 2, 0, 1))
sketch9.addConstraint(Sketcher.Constraint("Vertical", 0))
sketch9.addConstraint(Sketcher.Constraint("Horizontal", 1))
sketch9.addConstraint(Sketcher.Constraint("Vertical", 2))
sketch9.addConstraint(Sketcher.Constraint("Horizontal", 3))
sketch9.addConstraint(Sketcher.Constraint("Vertical", 4))
sketch9.addConstraint(Sketcher.Constraint("Horizontal", 5))
sketch9.addConstraint(Sketcher.Constraint("Vertical", 6))
sketch9.addConstraint(Sketcher.Constraint("Horizontal", 7))
sketch9.addConstraint(Sketcher.Constraint("Vertical", 8))
sketch9.addConstraint(Sketcher.Constraint("Horizontal", 9))
sketch9.addConstraint(Sketcher.Constraint("Vertical", 10))
sketch9.addConstraint(Sketcher.Constraint("Horizontal", 11))
sketch9.addConstraint(Sketcher.Constraint("Horizontal", 3, 2, 6, 2))
sketch9.addConstraint(Sketcher.Constraint("Horizontal", 1, 2, 8, 2))
sketch9.addConstraint(Sketcher.Constraint("Vertical", 0, 2, 3, 2))
sketch9.addConstraint(Sketcher.Constraint("Vertical", 6, 2, 9, 2))
sketch9.addConstraint(Sketcher.Constraint("Equal", 3, 7))
sketch9.addConstraint(Sketcher.Constraint("Equal", 0, 4))
sketch9.addConstraint(Sketcher.Constraint("DistanceY", 0, 1, 0, 2, Q("0.6 in")))
sketch9.addConstraint(Sketcher.Constraint("DistanceY", 2, 1, 2, 2, Q("0.7 in")))
sketch9.addConstraint(Sketcher.Constraint("DistanceY", 2, 2, -1, 1, Q("1 in")))
sketch9.addConstraint(Sketcher.Constraint("DistanceX", 1, 2, 1, 1, Q("0.35 in")))
sketch9.addConstraint(Sketcher.Constraint("DistanceX", 5, 1, 5, 2, Q("0.85 in")))
sketch9.addConstraint(Sketcher.Constraint("DistanceX", -1, 1, 1, 2, Q("0.9 in")))
pocket2 = body.newObject("PartDesign::Pocket", "Pocket001")
pocket2.Profile = sketch9
pocket2.Type = "ThroughAll"
pocket2.Reversed = True
doc.recompute()

fillet = body.newObject("PartDesign::Fillet", "Fillet")
fillet.Base = (pocket2, edges_at(pocket2, [
    (31.75, 1.905, -43.18),
    (53.34, 1.905, -43.18),
    (53.34, 1.905, -25.4),
    (31.75, 1.905, -25.4),
]))
fillet.Radius = Q("0.1 in")

# Sketch on YZ plane
sketch10 = body.newObject("Sketcher::SketchObject", "Sketch009")
sketch10.AttachmentSupport = (doc.getObject("YZ_Plane"), [""])
sketch10.MapMode = "FlatFace"
sketch10.AttachmentOffset = App.Placement(Vector(0, 0, 3.05 * 25.4), App.Rotation())
sketch10.addGeometry(Part.Circle(Vector(6.8, -8.4, 0), Vector(0, 0, 1), 1.6), False)
sketch10.addGeometry(Part.Circle(Vector(6.8, -60.2, 0), Vector(0, 0, 1), 1.6), False)
sketch10.addConstraint(Sketcher.Constraint("Equal", 0, 1))
sketch10.addConstraint(Sketcher.Constraint("Vertical", 0, 3, 1, 3))
sketch10.addConstraint(Sketcher.Constraint("Diameter", 0, Q("0.1285 in")))
sketch10.addConstraint(Sketcher.Constraint("DistanceY", 0, 3, -1, 1, Q("0.33 in")))
sketch10.addConstraint(Sketcher.Constraint("DistanceY", 1, 3, -1, 1, Q("2.37 in")))
sketch10.addConstraint(Sketcher.Constraint("DistanceX", -1, 1, 0, 3, 6.81))
pocket3 = body.newObject("PartDesign::Pocket", "Pocket002")
pocket3.Profile = sketch10
pocket3.Type = "ThroughAll"
pocket3.Midplane = True

# Sketch on YZ plane
sketch11 = body.newObject("Sketcher::SketchObject", "Sketch010")
sketch11.AttachmentSupport = (doc.getObject("YZ_Plane"), [""])
sketch11.MapMode = "FlatFace"
sketch11.AttachmentOffset = App.Placement(Vector(0, 0, 3.05 * 25.4), App.Rotation())
sketch11.addGeometry(Part.Circle(Vector(6.8, -8.4, 0), Vector(0, 0, 1), 3), False)
sketch11.addGeometry(Part.Circle(Vector(6.8, -8.4, 0), Vector(0, 0, 1), 1.6), False)
sketch11.addGeometry(Part.Circle(Vector(6.8, -60.2, 0), Vector(0, 0, 1), 3), False)
sketch11.addGeometry(Part.Circle(Vector(6.8, -60.2, 0), Vector(0, 0, 1), 1.6), False)
sketch11.addConstraint(Sketcher.Constraint("Coincident", 1, 3, 0, 3))
sketch11.addConstraint(Sketcher.Constraint("Coincident", 3, 3, 2, 3))
sketch11.addConstraint(Sketcher.Constraint("Equal", 0, 2))
sketch11.addConstraint(Sketcher.Constraint("Equal", 1, 3))
sketch11.addConstraint(Sketcher.Constraint("Vertical", 1, 3, 2, 3))
sketch11.addConstraint(Sketcher.Constraint("Diameter", 1, Q("0.1285 in")))
sketch11.addConstraint(Sketcher.Constraint("Diameter", 0, 6.0))
sketch11.addConstraint(Sketcher.Constraint("DistanceY", 0, 3, -1, 1, Q("0.33 in")))
sketch11.addConstraint(Sketcher.Constraint("DistanceY", 2, 3, -1, 1, Q("2.37 in")))
sketch11.addConstraint(Sketcher.Constraint("DistanceX", -1, 1, 0, 3, 6.81))
pocket4 = body.newObject("PartDesign::Pocket", "Pocket003")
pocket4.Profile = sketch11
pocket4.Length = 2
pocket4.Reversed = True

# Sketch on YZ plane
sketch12 = body.newObject("Sketcher::SketchObject", "Sketch011")
sketch12.AttachmentSupport = (doc.getObject("YZ_Plane"), [""])
sketch12.MapMode = "FlatFace"
sketch12.AttachmentOffset = App.Placement(Vector(0, 0, 0.3 * 25.4), App.Rotation())
sketch12.addGeometry(Part.Circle(Vector(6.8, -8.4, 0), Vector(0, 0, 1), 3), False)
sketch12.addGeometry(Part.Circle(Vector(6.8, -8.4, 0), Vector(0, 0, 1), 1.6), False)
sketch12.addGeometry(Part.Circle(Vector(6.8, -60.2, 0), Vector(0, 0, 1), 3), False)
sketch12.addGeometry(Part.Circle(Vector(6.8, -60.2, 0), Vector(0, 0, 1), 1.6), False)
sketch12.addConstraint(Sketcher.Constraint("Coincident", 1, 3, 0, 3))
sketch12.addConstraint(Sketcher.Constraint("Coincident", 3, 3, 2, 3))
sketch12.addConstraint(Sketcher.Constraint("Equal", 0, 2))
sketch12.addConstraint(Sketcher.Constraint("Equal", 1, 3))
sketch12.addConstraint(Sketcher.Constraint("Vertical", 1, 3, 2, 3))
sketch12.addConstraint(Sketcher.Constraint("Diameter", 1, Q("0.1285 in")))
sketch12.addConstraint(Sketcher.Constraint("Diameter", 0, 6.0))
sketch12.addConstraint(Sketcher.Constraint("DistanceY", 0, 3, -1, 1, Q("0.33 in")))
sketch12.addConstraint(Sketcher.Constraint("DistanceY", 2, 3, -1, 1, Q("2.37 in")))
sketch12.addConstraint(Sketcher.Constraint("DistanceX", -1, 1, 0, 3, 6.81))
pocket5 = body.newObject("PartDesign::Pocket", "Pocket004")
pocket5.Profile = sketch12
pocket5.Length = 2

doc.recompute()
